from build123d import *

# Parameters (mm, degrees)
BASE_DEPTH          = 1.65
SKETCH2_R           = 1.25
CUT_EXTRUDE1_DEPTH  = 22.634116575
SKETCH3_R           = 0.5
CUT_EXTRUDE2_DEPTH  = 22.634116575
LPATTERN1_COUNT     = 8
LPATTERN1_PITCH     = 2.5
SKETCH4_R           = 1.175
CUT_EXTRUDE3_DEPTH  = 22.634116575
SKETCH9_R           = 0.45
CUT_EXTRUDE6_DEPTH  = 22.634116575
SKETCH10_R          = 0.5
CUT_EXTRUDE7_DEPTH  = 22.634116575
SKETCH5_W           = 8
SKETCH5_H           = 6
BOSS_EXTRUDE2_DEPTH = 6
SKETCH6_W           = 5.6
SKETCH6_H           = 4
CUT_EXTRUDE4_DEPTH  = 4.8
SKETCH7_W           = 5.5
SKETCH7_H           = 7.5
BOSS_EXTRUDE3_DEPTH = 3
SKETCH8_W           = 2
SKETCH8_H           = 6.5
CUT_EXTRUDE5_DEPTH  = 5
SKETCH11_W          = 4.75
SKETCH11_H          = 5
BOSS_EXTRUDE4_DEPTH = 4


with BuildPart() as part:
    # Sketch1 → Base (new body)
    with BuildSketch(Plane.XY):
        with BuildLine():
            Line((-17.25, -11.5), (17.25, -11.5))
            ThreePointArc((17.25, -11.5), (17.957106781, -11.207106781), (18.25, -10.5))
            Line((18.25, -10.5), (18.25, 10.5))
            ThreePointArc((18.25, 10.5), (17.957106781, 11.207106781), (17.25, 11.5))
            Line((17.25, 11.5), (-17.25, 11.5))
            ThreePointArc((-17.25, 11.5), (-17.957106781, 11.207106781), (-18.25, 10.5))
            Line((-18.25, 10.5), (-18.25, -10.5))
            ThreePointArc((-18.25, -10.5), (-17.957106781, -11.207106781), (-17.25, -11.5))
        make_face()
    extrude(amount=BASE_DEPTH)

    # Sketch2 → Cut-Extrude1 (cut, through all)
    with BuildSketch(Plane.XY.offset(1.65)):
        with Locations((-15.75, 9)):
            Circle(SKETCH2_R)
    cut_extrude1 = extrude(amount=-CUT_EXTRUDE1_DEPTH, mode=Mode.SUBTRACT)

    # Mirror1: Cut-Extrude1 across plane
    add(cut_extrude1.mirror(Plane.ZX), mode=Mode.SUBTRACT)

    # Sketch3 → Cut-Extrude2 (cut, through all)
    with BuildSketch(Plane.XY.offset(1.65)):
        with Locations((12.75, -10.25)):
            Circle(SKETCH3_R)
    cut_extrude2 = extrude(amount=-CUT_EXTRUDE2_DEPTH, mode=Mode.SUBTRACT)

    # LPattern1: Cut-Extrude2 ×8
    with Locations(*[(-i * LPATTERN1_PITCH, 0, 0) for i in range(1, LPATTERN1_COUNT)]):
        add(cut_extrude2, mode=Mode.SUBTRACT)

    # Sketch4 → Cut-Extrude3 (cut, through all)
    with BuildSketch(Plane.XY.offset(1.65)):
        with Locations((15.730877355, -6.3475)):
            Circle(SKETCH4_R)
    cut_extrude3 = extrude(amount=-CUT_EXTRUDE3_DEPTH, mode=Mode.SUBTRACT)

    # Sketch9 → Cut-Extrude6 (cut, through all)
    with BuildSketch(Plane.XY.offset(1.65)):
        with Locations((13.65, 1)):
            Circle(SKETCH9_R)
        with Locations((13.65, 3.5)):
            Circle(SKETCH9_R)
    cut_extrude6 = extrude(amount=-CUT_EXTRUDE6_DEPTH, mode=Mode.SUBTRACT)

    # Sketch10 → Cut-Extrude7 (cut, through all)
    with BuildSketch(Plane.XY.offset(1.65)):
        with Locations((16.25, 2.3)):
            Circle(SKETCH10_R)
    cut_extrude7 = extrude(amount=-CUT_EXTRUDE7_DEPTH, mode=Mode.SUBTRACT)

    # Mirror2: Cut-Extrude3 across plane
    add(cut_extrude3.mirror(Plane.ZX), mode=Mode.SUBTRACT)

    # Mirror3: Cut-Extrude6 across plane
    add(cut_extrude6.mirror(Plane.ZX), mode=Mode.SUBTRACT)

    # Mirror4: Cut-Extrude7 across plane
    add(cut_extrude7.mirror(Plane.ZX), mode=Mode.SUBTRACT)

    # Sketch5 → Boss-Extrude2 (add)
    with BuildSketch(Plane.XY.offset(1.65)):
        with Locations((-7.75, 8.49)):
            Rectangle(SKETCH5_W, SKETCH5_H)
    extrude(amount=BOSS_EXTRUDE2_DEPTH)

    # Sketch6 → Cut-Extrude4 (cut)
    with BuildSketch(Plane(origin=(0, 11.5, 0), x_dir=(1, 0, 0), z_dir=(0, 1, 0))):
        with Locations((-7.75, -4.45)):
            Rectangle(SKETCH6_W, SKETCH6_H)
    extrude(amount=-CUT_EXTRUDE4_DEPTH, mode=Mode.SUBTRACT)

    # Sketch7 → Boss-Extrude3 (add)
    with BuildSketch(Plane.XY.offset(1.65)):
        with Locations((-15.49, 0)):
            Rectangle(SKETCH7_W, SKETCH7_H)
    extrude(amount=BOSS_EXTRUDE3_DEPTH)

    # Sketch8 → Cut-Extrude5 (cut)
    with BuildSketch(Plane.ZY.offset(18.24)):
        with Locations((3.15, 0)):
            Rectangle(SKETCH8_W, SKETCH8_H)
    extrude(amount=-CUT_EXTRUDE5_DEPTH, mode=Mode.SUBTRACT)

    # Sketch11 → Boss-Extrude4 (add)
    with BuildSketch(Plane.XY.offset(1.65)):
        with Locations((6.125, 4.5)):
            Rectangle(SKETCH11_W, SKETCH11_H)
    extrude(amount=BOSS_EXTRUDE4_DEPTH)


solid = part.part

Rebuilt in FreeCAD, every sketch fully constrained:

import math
import FreeCAD as App
import Part
import Sketcher
Q = App.Units.Quantity


def add_polygon(sketch, points):
    """Adds a closed chain of lines whose ends are joined by coincident constraints."""
    first, n = sketch.GeometryCount, len(points)
    for a, b in zip(points, points[1:] + points[:1]):
        sketch.addGeometry(Part.LineSegment(App.Vector(*a, 0), App.Vector(*b, 0)), False)
    for i in range(n):
        sketch.addConstraint(Sketcher.Constraint("Coincident", first + i, 2, first + (i + 1) % n, 1))

doc = App.newDocument("Part")
body = doc.addObject("PartDesign::Body", "Body")

sketch1 = doc.addObject("Sketcher::SketchObject", "Sketch")
body.addObject(sketch1)
sketch1.AttachmentSupport = (doc.XY_Plane, [""])
sketch1.MapMode = "FlatFace"
sketch1.addGeometry(Part.LineSegment(App.Vector(-17.2, -11.5, 0), App.Vector(17.2, -11.5, 0)), False)
sketch1.addGeometry(Part.ArcOfCircle(Part.Circle(App.Vector(17.2, -10.5, 0), App.Vector(0, 0, 1), 1), math.radians(-90), math.radians(0)), False)
sketch1.addGeometry(Part.LineSegment(App.Vector(18.2, -10.5, 0), App.Vector(18.2, 10.5, 0)), False)
sketch1.addGeometry(Part.ArcOfCircle(Part.Circle(App.Vector(17.2, 10.5, 0), App.Vector(0, 0, 1), 1), math.radians(0), math.radians(90)), False)
sketch1.addGeometry(Part.LineSegment(App.Vector(17.2, 11.5, 0), App.Vector(-17.2, 11.5, 0)), False)
sketch1.addGeometry(Part.ArcOfCircle(Part.Circle(App.Vector(-17.2, 10.5, 0), App.Vector(0, 0, 1), 1), math.radians(90), math.radians(180)), False)
sketch1.addGeometry(Part.LineSegment(App.Vector(-18.2, 10.5, 0), App.Vector(-18.2, -10.5, 0)), False)
sketch1.addGeometry(Part.ArcOfCircle(Part.Circle(App.Vector(-17.2, -10.5, 0), App.Vector(0, 0, 1), 1), math.radians(-180), math.radians(-90)), False)
sketch1.addConstraint(Sketcher.Constraint("Tangent", 0, 2, 1, 1))
sketch1.addConstraint(Sketcher.Constraint("Tangent", 1, 2, 2, 1))
sketch1.addConstraint(Sketcher.Constraint("Tangent", 2, 2, 3, 1))
sketch1.addConstraint(Sketcher.Constraint("Tangent", 3, 2, 4, 1))
sketch1.addConstraint(Sketcher.Constraint("Tangent", 4, 2, 5, 1))
sketch1.addConstraint(Sketcher.Constraint("Tangent", 5, 2, 6, 1))
sketch1.addConstraint(Sketcher.Constraint("Tangent", 6, 2, 7, 1))
sketch1.addConstraint(Sketcher.Constraint("Tangent", 7, 2, 0, 1))
sketch1.addConstraint(Sketcher.Constraint("Horizontal", 0))
sketch1.addConstraint(Sketcher.Constraint("Vertical", 2))
sketch1.addConstraint(Sketcher.Constraint("Horizontal", 4))
sketch1.addConstraint(Sketcher.Constraint("Vertical", 6))
sketch1.addConstraint(Sketcher.Constraint("Equal", 1, 3))
sketch1.addConstraint(Sketcher.Constraint("Equal", 3, 5))
sketch1.addConstraint(Sketcher.Constraint("Equal", 5, 7))
sketch1.addConstraint(Sketcher.Constraint("Symmetric", 1, 3, 5, 3, -1, 1))
sketch1.addConstraint(Sketcher.Constraint("Radius", 1, Q("1 mm")))
sketch1.addConstraint(Sketcher.Constraint("DistanceY", 2, 1, 2, 2, Q("21 mm")))
sketch1.addConstraint(Sketcher.Constraint("DistanceX", 0, 1, 0, 2, Q("34.5 mm")))
pad1 = doc.addObject("PartDesign::Pad", "Pad")
body.addObject(pad1)
pad1.Profile = sketch1
pad1.Length = 1.65

sketch2 = doc.addObject("Sketcher::SketchObject", "Sketch001")
body.addObject(sketch2)
sketch2.AttachmentSupport = (doc.XY_Plane, [""])
sketch2.MapMode = "FlatFace"
sketch2.AttachmentOffset = App.Placement(App.Vector(0, 0, 1.65), App.Rotation())
sketch2.addGeometry(Part.Circle(App.Vector(-15.8, 9, 0), App.Vector(0, 0, 1), 1.2), False)
sketch2.addConstraint(Sketcher.Constraint("Diameter", 0, Q("2.5 mm")))
sketch2.addConstraint(Sketcher.Constraint("DistanceY", -1, 1, 0, 3, Q("9 mm")))
sketch2.addConstraint(Sketcher.Constraint("DistanceX", 0, 3, -1, 1, Q("15.75 mm")))
pocket1 = doc.addObject("PartDesign::Pocket", "Pocket")
body.addObject(pocket1)
pocket1.Profile = sketch2
pocket1.Type = "ThroughAll"
doc.recompute()

mirrored = doc.addObject("PartDesign::Mirrored", "Mirrored")
body.addObject(mirrored)
mirrored.Originals = [pocket1]
mirrored.MirrorPlane = (doc.XZ_Plane, [""])
body.Tip = mirrored

sketch3 = doc.addObject("Sketcher::SketchObject", "Sketch002")
body.addObject(sketch3)
sketch3.AttachmentSupport = (doc.XY_Plane, [""])
sketch3.MapMode = "FlatFace"
sketch3.AttachmentOffset = App.Placement(App.Vector(0, 0, 1.65), App.Rotation())
sketch3.addGeometry(Part.Circle(App.Vector(12.8, -10.2, 0), App.Vector(0, 0, 1), 0.5), False)
sketch3.addConstraint(Sketcher.Constraint("Diameter", 0, Q("1 mm")))
sketch3.addConstraint(Sketcher.Constraint("DistanceX", -1, 1, 0, 3, Q("12.75 mm")))
sketch3.addConstraint(Sketcher.Constraint("DistanceY", 0, 3, -1, 1, Q("10.25 mm")))
pocket2 = doc.addObject("PartDesign::Pocket", "Pocket001")
body.addObject(pocket2)
pocket2.Profile = sketch3
pocket2.Type = "ThroughAll"
doc.recompute()

linearpattern = doc.addObject("PartDesign::LinearPattern", "LinearPattern")
body.addObject(linearpattern)
linearpattern.Originals = [pocket2]
linearpattern.Direction = (doc.X_Axis, [""])
linearpattern.Mode = "offset"
linearpattern.Offset = 2.5
linearpattern.Occurrences = 8
linearpattern.Reversed = True
body.Tip = linearpattern

sketch4 = doc.addObject("Sketcher::SketchObject", "Sketch003")
body.addObject(sketch4)
sketch4.AttachmentSupport = (doc.XY_Plane, [""])
sketch4.MapMode = "FlatFace"
sketch4.AttachmentOffset = App.Placement(App.Vector(0, 0, 1.65), App.Rotation())
sketch4.addGeometry(Part.Circle(App.Vector(15.7, -6.3, 0), App.Vector(0, 0, 1), 1.2), False)
sketch4.addConstraint(Sketcher.Constraint("Diameter", 0, Q("2.35 mm")))
sketch4.addConstraint(Sketcher.Constraint("DistanceY", 0, 3, -1, 1, Q("6.3475 mm")))
sketch4.addConstraint(Sketcher.Constraint("DistanceX", -1, 1, 0, 3, Q("15.730877 mm")))
pocket3 = doc.addObject("PartDesign::Pocket", "Pocket002")
body.addObject(pocket3)
pocket3.Profile = sketch4
pocket3.Type = "ThroughAll"

sketch5 = doc.addObject("Sketcher::SketchObject", "Sketch004")
body.addObject(sketch5)
sketch5.AttachmentSupport = (doc.XY_Plane, [""])
sketch5.MapMode = "FlatFace"
sketch5.AttachmentOffset = App.Placement(App.Vector(0, 0, 1.65), App.Rotation())
sketch5.addGeometry(Part.Circle(App.Vector(13.65, 1, 0), App.Vector(0, 0, 1), 0.45), False)
sketch5.addGeometry(Part.Circle(App.Vector(13.65, 3.5, 0), App.Vector(0, 0, 1), 0.45), False)
sketch5.addConstraint(Sketcher.Constraint("Equal", 0, 1))
sketch5.addConstraint(Sketcher.Constraint("Vertical", 0, 3, 1, 3))
sketch5.addConstraint(Sketcher.Constraint("Diameter", 0, Q("0.9 mm")))
sketch5.addConstraint(Sketcher.Constraint("DistanceY", -1, 1, 0, 3, Q("1 mm")))
sketch5.addConstraint(Sketcher.Constraint("DistanceY", -1, 1, 1, 3, Q("3.5 mm")))
sketch5.addConstraint(Sketcher.Constraint("DistanceX", -1, 1, 0, 3, Q("13.65 mm")))
pocket4 = doc.addObject("PartDesign::Pocket", "Pocket003")
body.addObject(pocket4)
pocket4.Profile = sketch5
pocket4.Type = "ThroughAll"

sketch6 = doc.addObject("Sketcher::SketchObject", "Sketch005")
body.addObject(sketch6)
sketch6.AttachmentSupport = (doc.XY_Plane, [""])
sketch6.MapMode = "FlatFace"
sketch6.AttachmentOffset = App.Placement(App.Vector(0, 0, 1.65), App.Rotation())
sketch6.addGeometry(Part.Circle(App.Vector(16.2, 2.3, 0), App.Vector(0, 0, 1), 0.5), False)
sketch6.addConstraint(Sketcher.Constraint("Diameter", 0, Q("1 mm")))
sketch6.addConstraint(Sketcher.Constraint("DistanceY", -1, 1, 0, 3, Q("2.3 mm")))
sketch6.addConstraint(Sketcher.Constraint("DistanceX", -1, 1, 0, 3, Q("16.25 mm")))
pocket5 = doc.addObject("PartDesign::Pocket", "Pocket004")
body.addObject(pocket5)
pocket5.Profile = sketch6
pocket5.Type = "ThroughAll"
doc.recompute()

mirrored2 = doc.addObject("PartDesign::Mirrored", "Mirrored001")
body.addObject(mirrored2)
mirrored2.Originals = [pocket3]
mirrored2.MirrorPlane = (doc.XZ_Plane, [""])
body.Tip = mirrored2
doc.recompute()

mirrored3 = doc.addObject("PartDesign::Mirrored", "Mirrored002")
body.addObject(mirrored3)
mirrored3.Originals = [pocket4]
mirrored3.MirrorPlane = (doc.XZ_Plane, [""])
body.Tip = mirrored3
doc.recompute()

mirrored4 = doc.addObject("PartDesign::Mirrored", "Mirrored003")
body.addObject(mirrored4)
mirrored4.Originals = [pocket5]
mirrored4.MirrorPlane = (doc.XZ_Plane, [""])
body.Tip = mirrored4

sketch7 = doc.addObject("Sketcher::SketchObject", "Sketch006")
body.addObject(sketch7)
sketch7.AttachmentSupport = (doc.XY_Plane, [""])
sketch7.MapMode = "FlatFace"
sketch7.AttachmentOffset = App.Placement(App.Vector(0, 0, 1.65), App.Rotation())
add_polygon(sketch7, [(-12, 11), (-12, 5), (-4, 5), (-4, 11)])
sketch7.addConstraint(Sketcher.Constraint("Vertical", 0))
sketch7.addConstraint(Sketcher.Constraint("Horizontal", 1))
sketch7.addConstraint(Sketcher.Constraint("Vertical", 2))
sketch7.addConstraint(Sketcher.Constraint("Horizontal", 3))
sketch7.addConstraint(Sketcher.Constraint("DistanceX", 1, 1, 1, 2, Q("8 mm")))
sketch7.addConstraint(Sketcher.Constraint("DistanceY", 0, 2, 0, 1, Q("6 mm")))
sketch7.addConstraint(Sketcher.Constraint("DistanceX", 0, 2, -1, 1, Q("11.75 mm")))
sketch7.addConstraint(Sketcher.Constraint("DistanceY", -1, 1, 0, 2, Q("5.49 mm")))
pad2 = doc.addObject("PartDesign::Pad", "Pad001")
body.addObject(pad2)
pad2.Profile = sketch7
pad2.Length = 6

sketch8 = doc.addObject("Sketcher::SketchObject", "Sketch007")
body.addObject(sketch8)
sketch8.AttachmentSupport = (doc.XZ_Plane, [""])
sketch8.MapMode = "FlatFace"
sketch8.AttachmentOffset = App.Placement(App.Vector(0, 0, -11.5), App.Rotation())
add_polygon(sketch8, [(-10.6, 2.5), (-10.6, 6.5), (-5, 6.5), (-5, 2.5)])
sketch8.addConstraint(Sketcher.Constraint("Vertical", 0))
sketch8.addConstraint(Sketcher.Constraint("Horizontal", 1))
sketch8.addConstraint(Sketcher.Constraint("Vertical", 2))
sketch8.addConstraint(Sketcher.Constraint("Horizontal", 3))
sketch8.addConstraint(Sketcher.Constraint("DistanceY", 0, 1, 0, 2, Q("4 mm")))
sketch8.addConstraint(Sketcher.Constraint("DistanceX", 1, 1, 1, 2, Q("5.6 mm")))
sketch8.addConstraint(Sketcher.Constraint("DistanceX", 0, 2, -1, 1, Q("10.55 mm")))
sketch8.addConstraint(Sketcher.Constraint("DistanceY", -1, 1, 0, 2, Q("6.45 mm")))
pocket6 = doc.addObject("PartDesign::Pocket", "Pocket005")
body.addObject(pocket6)
pocket6.Profile = sketch8
pocket6.Length = 4.8
pocket6.Reversed = True

sketch9 = doc.addObject("Sketcher::SketchObject", "Sketch008")
body.addObject(sketch9)
sketch9.AttachmentSupport = (doc.XY_Plane, [""])
sketch9.MapMode = "FlatFace"
sketch9.AttachmentOffset = App.Placement(App.Vector(0, 0, 1.65), App.Rotation())
add_polygon(sketch9, [(-18, 4), (-18, -4), (-13, -4), (-13, 4)])
sketch9.addConstraint(Sketcher.Constraint("Vertical", 0))
sketch9.addConstraint(Sketcher.Constraint("Horizontal", 1))
sketch9.addConstraint(Sketcher.Constraint("Vertical", 2))
sketch9.addConstraint(Sketcher.Constraint("Horizontal", 3))
sketch9.addConstraint(Sketcher.Constraint("DistanceX", 1, 1, 1, 2, Q("5.5 mm")))
sketch9.addConstraint(Sketcher.Constraint("DistanceY", 0, 2, 0, 1, Q("7.5 mm")))
sketch9.addConstraint(Sketcher.Constraint("DistanceX", 0, 2, -1, 1, Q("18.24 mm")))
sketch9.addConstraint(Sketcher.Constraint("DistanceY", 0, 2, -1, 1, Q("3.75 mm")))
pad3 = doc.addObject("PartDesign::Pad", "Pad002")
body.addObject(pad3)
pad3.Profile = sketch9
pad3.Length = 3

sketch10 = doc.addObject("Sketcher::SketchObject", "Sketch009")
body.addObject(sketch10)
sketch10.AttachmentSupport = (doc.YZ_Plane, [""])
sketch10.MapMode = "FlatFace"
sketch10.AttachmentOffset = App.Placement(App.Vector(0, 0, -18.24), App.Rotation())
add_polygon(sketch10, [(3.2, 2.1), (-3.2, 2.1), (-3.2, 4.2), (3.2, 4.2)])
sketch10.addConstraint(Sketcher.Constraint("Horizontal", 0))
sketch10.addConstraint(Sketcher.Constraint("Vertical", 1))
sketch10.addConstraint(Sketcher.Constraint("Horizontal", 2))
sketch10.addConstraint(Sketcher.Constraint("Vertical", 3))
sketch10.addConstraint(Sketcher.Constraint("DistanceY", 1, 1, 1, 2, Q("2 mm")))
sketch10.addConstraint(Sketcher.Constraint("DistanceX", 0, 2, 0, 1, Q("6.5 mm")))
sketch10.addConstraint(Sketcher.Constraint("DistanceX", 0, 2, -1, 1, Q("3.25 mm")))
sketch10.addConstraint(Sketcher.Constraint("DistanceY", -1, 1, 0, 2, Q("2.15 mm")))
pocket7 = doc.addObject("PartDesign::Pocket", "Pocket006")
body.addObject(pocket7)
pocket7.Profile = sketch10
pocket7.Length = 5
pocket7.Reversed = True

sketch11 = doc.addObject("Sketcher::SketchObject", "Sketch010")
body.addObject(sketch11)
sketch11.AttachmentSupport = (doc.XY_Plane, [""])
sketch11.MapMode = "FlatFace"
sketch11.AttachmentOffset = App.Placement(App.Vector(0, 0, 1.65), App.Rotation())
add_polygon(sketch11, [(3.8, 7), (3.8, 2), (8.5, 2), (8.5, 7)])
sketch11.addConstraint(Sketcher.Constraint("Vertical", 0))
sketch11.addConstraint(Sketcher.Constraint("Horizontal", 1))
sketch11.addConstraint(Sketcher.Constraint("Vertical", 2))
sketch11.addConstraint(Sketcher.Constraint("Horizontal", 3))
sketch11.addConstraint(Sketcher.Constraint("DistanceY", 0, 2, 0, 1, Q("5 mm")))
sketch11.addConstraint(Sketcher.Constraint("DistanceY", -1, 1, 0, 2, Q("2 mm")))
sketch11.addConstraint(Sketcher.Constraint("DistanceX", 1, 1, 1, 2, Q("4.75 mm")))
sketch11.addConstraint(Sketcher.Constraint("DistanceX", -1, 1, 1, 2, Q("8.5 mm")))
pad4 = doc.addObject("PartDesign::Pad", "Pad003")
body.addObject(pad4)
pad4.Profile = sketch11
pad4.Length = 4

doc.recompute()
